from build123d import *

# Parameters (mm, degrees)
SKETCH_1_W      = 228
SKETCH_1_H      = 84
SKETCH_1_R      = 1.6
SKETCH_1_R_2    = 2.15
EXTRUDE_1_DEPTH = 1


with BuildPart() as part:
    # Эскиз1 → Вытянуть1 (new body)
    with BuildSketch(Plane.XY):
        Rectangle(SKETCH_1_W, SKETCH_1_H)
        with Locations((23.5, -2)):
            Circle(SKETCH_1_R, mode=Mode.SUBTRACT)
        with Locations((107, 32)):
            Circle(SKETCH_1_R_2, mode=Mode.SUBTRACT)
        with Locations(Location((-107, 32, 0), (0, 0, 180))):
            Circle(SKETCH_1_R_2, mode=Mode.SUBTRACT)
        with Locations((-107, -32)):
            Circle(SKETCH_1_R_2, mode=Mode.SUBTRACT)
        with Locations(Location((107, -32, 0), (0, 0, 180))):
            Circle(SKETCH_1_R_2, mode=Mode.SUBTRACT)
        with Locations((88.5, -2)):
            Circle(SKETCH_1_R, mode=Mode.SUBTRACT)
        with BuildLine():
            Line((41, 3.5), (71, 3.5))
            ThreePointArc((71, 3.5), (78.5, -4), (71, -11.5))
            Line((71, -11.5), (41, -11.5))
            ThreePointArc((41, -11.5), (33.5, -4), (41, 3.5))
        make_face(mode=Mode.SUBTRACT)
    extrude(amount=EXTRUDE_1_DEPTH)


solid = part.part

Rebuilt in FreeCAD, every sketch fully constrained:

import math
import FreeCAD as App
import Part
import Sketcher
from FreeCAD import Vector
Q = App.Units.Quantity

doc = App.newDocument("Part")
body = doc.addObject("PartDesign::Body", "Body")

# Sketch on XY plane
sketch1 = body.newObject("Sketcher::SketchObject", "Sketch")
sketch1.AttachmentSupport = (doc.getObject("XY_Plane"), [""])
sketch1.MapMode = "FlatFace"
sketch1.addGeometry([
    Part.LineSegment(Vector(-114, 42, 0), Vector(-114, -42, 0)),  # 0
    Part.LineSegment(Vector(-114, -42, 0), Vector(114, -42, 0)),  # 1
    Part.LineSegment(Vector(114, -42, 0), Vector(114, 42, 0)),  # 2
    Part.LineSegment(Vector(114, 42, 0), Vector(-114, 42, 0)),  # 3
    Part.Circle(Vector(-107, -32, 0), Vector(0, 0, 1), 2.1),  # 4
    Part.Circle(Vector(107, -32, 0), Vector(0, 0, 1), 2.1),  # 5
    Part.Circle(Vector(23.5, -2, 0), Vector(0, 0, 1), 1.6),  # 6
    Part.ArcOfCircle(Part.Circle(Vector(41, -4, 0), Vector(0, 0, 1), 7.5), math.radians(90), math.radians(270)),  # 7
    Part.LineSegment(Vector(41, 3.5, 0), Vector(71, 3.5, 0)),  # 8
    Part.ArcOfCircle(Part.Circle(Vector(71, -4, 0), Vector(0, 0, 1), 7.5), math.radians(-90), math.radians(90)),  # 9
    Part.LineSegment(Vector(71, -11.5, 0), Vector(41, -11.5, 0)),  # 10
    Part.Circle(Vector(88.5, -2, 0), Vector(0, 0, 1), 1.6),  # 11
    Part.Circle(Vector(-107, 32, 0), Vector(0, 0, 1), 2.1),  # 12
    Part.Circle(Vector(107, 32, 0), Vector(0, 0, 1), 2.1),  # 13
], False)
sketch1.addConstraint([
    Sketcher.Constraint("Coincident", 0, 2, 1, 1),
    Sketcher.Constraint("Coincident", 1, 2, 2, 1),
    Sketcher.Constraint("Coincident", 2, 2, 3, 1),
    Sketcher.Constraint("Coincident", 3, 2, 0, 1),
    Sketcher.Constraint("Tangent", 7, 1, 8, 1),
    Sketcher.Constraint("Tangent", 8, 2, 9, 2),
    Sketcher.Constraint("Tangent", 9, 1, 10, 1),
    Sketcher.Constraint("Tangent", 10, 2, 7, 2),
    Sketcher.Constraint("Vertical", 0),
    Sketcher.Constraint("Horizontal", 1),
    Sketcher.Constraint("Vertical", 2),
    Sketcher.Constraint("Horizontal", 3),
    Sketcher.Constraint("Horizontal", 8),
    Sketcher.Constraint("Horizontal", 10),
    Sketcher.Constraint("Equal", 4, 5),
    Sketcher.Constraint("Equal", 6, 11),
    Sketcher.Constraint("Equal", 5, 12),
    Sketcher.Constraint("Equal", 12, 13),
    Sketcher.Constraint("Symmetric", 5, 3, 12, 3, -1, 1),
    Sketcher.Constraint("Symmetric", 4, 3, 13, 3, -1, 1),
    Sketcher.Constraint("Symmetric", 0, 2, 2, 2, -1, 1),
    Sketcher.Constraint("Symmetric", 4, 3, 5, 3, -2),
    Sketcher.Constraint("Horizontal", 6, 3, 11, 3),
    Sketcher.Constraint("Diameter", 4, Q("4.3 mm")),
    Sketcher.Constraint("Diameter", 6, Q("3.2 mm")),
    Sketcher.Constraint("Radius", 7, Q("7.5 mm")),
    Sketcher.Constraint("DistanceX", 1, 1, 1, 2, Q("228 mm")),
    Sketcher.Constraint("DistanceX", 8, 1, 8, 2, Q("30 mm")),
    Sketcher.Constraint("DistanceY", 0, 2, 0, 1, Q("84 mm")),
    Sketcher.Constraint("DistanceX", 4, 3, -1, 1, Q("107 mm")),
    Sketcher.Constraint("DistanceY", 4, 3, -1, 1, Q("32 mm")),
    Sketcher.Constraint("DistanceY", 6, 3, -1, 1, Q("2 mm")),
    Sketcher.Constraint("DistanceX", -1, 1, 7, 3, Q("41 mm")),
    Sketcher.Constraint("DistanceY", 7, 3, -1, 1, Q("4 mm")),
    Sketcher.Constraint("DistanceX", 6, 3, 11, 3, Q("65 mm")),
    Sketcher.Constraint("DistanceX", -1, 1, 6, 3, Q("23.5 mm")),
])
pad1 = body.newObject("PartDesign::Pad", "Pad")
pad1.Profile = sketch1
pad1.Length = 1

doc.recompute()
